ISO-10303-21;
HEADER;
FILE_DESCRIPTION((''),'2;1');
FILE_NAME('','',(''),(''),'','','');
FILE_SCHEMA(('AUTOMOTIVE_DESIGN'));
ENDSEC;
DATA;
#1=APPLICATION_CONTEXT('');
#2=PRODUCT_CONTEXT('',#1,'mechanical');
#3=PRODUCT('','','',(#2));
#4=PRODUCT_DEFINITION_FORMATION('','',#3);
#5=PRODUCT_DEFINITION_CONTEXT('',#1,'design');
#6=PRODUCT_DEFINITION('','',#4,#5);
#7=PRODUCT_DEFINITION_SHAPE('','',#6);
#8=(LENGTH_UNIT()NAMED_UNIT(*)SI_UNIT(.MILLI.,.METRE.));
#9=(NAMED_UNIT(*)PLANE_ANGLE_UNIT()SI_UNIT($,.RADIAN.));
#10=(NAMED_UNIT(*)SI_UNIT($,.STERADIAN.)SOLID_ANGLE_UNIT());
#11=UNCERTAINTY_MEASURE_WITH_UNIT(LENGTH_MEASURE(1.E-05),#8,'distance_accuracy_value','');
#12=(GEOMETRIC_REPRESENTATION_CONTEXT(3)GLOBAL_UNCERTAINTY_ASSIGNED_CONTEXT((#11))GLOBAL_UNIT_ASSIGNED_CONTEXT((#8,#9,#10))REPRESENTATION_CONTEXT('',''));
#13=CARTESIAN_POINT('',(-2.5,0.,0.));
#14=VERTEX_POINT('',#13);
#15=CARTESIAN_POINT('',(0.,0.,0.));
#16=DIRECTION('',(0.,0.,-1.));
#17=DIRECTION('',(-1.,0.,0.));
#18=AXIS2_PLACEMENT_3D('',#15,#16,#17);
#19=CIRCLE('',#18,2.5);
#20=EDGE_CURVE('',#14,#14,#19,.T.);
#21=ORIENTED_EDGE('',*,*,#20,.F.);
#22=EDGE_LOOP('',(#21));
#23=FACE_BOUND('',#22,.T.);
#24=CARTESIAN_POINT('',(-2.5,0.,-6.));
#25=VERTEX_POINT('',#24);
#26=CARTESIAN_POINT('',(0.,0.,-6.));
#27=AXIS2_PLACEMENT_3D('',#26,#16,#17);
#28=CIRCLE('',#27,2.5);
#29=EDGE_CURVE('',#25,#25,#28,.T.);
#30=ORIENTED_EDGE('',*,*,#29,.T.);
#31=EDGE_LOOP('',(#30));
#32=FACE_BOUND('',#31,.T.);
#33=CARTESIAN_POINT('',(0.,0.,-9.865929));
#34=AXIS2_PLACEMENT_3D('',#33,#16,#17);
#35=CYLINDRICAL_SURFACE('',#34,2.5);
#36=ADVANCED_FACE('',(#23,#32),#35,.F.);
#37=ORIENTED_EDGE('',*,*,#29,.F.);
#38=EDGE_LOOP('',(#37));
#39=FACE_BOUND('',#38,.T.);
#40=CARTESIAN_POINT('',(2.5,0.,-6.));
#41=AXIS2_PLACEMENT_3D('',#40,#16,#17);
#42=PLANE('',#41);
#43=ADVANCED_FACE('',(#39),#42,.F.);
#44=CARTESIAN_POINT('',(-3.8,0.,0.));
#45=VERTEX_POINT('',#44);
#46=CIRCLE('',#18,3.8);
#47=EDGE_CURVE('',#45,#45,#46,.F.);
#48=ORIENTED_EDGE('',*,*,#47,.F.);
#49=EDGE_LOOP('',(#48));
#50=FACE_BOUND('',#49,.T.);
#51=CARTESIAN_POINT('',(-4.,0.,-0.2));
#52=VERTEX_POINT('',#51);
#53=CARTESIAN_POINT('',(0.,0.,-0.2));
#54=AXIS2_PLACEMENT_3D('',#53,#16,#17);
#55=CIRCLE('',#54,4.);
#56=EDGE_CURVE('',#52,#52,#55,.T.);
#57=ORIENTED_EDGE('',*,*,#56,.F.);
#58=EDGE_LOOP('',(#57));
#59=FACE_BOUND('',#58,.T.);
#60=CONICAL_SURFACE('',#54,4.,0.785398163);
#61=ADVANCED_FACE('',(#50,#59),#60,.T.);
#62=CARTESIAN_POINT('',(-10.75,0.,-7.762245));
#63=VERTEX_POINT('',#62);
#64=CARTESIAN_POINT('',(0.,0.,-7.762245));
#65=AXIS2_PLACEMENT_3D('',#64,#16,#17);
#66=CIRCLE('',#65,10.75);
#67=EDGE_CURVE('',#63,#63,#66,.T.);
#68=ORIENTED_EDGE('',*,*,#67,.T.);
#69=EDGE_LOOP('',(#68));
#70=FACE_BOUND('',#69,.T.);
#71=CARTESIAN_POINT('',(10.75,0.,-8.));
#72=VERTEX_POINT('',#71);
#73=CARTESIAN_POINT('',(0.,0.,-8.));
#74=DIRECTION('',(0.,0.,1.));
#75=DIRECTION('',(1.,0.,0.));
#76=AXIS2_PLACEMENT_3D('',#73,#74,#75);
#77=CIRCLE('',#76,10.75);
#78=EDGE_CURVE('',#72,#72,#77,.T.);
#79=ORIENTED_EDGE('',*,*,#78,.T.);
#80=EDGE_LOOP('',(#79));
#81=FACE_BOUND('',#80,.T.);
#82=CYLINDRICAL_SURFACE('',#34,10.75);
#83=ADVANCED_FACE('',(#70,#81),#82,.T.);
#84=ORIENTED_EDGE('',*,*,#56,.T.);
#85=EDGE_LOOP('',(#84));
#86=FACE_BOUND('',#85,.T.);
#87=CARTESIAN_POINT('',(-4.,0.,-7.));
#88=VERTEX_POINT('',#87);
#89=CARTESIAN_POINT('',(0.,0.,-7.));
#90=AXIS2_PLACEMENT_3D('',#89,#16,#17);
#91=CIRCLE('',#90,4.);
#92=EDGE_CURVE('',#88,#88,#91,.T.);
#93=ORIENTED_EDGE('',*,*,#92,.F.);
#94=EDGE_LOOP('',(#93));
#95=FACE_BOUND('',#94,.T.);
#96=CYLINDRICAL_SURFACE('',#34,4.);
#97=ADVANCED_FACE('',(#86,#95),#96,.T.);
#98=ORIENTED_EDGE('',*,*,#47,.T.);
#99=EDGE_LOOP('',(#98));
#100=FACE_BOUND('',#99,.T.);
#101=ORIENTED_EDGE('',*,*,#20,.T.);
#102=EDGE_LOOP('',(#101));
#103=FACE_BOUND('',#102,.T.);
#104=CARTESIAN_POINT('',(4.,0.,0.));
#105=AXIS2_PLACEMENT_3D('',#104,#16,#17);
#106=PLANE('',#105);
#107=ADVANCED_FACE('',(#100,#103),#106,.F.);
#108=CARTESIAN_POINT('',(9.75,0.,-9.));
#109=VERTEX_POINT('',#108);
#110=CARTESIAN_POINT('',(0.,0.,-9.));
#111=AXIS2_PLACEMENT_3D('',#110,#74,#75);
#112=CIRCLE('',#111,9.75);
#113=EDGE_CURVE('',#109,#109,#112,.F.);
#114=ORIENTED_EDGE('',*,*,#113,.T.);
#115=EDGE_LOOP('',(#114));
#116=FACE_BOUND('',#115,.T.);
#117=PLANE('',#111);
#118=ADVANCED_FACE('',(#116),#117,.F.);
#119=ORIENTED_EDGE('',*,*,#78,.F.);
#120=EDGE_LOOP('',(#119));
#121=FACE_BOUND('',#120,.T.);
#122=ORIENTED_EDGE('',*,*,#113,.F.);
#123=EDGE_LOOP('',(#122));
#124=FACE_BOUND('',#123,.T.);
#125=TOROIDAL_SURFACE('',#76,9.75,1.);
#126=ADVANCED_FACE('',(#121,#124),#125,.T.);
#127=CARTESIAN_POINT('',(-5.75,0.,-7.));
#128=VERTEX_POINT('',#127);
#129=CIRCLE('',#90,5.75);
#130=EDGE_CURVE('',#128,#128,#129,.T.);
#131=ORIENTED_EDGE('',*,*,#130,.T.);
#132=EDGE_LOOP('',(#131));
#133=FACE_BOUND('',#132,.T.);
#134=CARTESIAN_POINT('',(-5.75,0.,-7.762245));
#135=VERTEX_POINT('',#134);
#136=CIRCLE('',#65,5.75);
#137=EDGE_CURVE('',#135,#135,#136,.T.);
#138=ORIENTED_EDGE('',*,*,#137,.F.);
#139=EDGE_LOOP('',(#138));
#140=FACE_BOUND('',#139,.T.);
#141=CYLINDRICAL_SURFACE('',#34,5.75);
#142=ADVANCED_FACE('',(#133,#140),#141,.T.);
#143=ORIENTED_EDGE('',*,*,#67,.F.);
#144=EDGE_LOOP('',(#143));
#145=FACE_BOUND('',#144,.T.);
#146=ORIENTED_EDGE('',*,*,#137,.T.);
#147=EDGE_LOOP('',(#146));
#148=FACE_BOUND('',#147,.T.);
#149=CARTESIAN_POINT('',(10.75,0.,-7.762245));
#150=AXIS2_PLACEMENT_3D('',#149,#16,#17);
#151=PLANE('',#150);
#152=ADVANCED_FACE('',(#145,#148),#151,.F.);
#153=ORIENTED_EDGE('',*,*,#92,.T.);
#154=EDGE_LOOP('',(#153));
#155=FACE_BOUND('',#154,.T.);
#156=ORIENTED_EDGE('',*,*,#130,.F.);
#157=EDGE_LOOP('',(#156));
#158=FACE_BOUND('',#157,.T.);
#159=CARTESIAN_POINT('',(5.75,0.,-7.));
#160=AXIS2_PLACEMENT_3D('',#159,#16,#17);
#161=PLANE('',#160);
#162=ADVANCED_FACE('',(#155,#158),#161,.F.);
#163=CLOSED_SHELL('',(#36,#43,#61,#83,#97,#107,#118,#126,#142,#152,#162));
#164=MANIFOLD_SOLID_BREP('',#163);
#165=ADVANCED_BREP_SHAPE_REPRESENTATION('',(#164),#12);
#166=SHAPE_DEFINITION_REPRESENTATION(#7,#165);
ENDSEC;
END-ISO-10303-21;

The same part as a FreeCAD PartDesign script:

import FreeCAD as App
import Part
import Sketcher
from FreeCAD import Vector


def edges_at(feature, points):
    """Names of the edges that pass closest to the given points."""
    edges = feature.Shape.Edges
    near = lambda p: min(range(len(edges)), key=lambda i: edges[i].distToShape(Part.Vertex(*p))[0])
    return sorted({f"Edge{near(p) + 1}" for p in points})

doc = App.newDocument("Part")
body = doc.addObject("PartDesign::Body", "Body")

# Sketch on XZ plane
sketch1 = doc.addObject("Sketcher::SketchObject", "Sketch")
body.addObject(sketch1)
sketch1.AttachmentSupport = (doc.XZ_Plane, [""])
sketch1.MapMode = "FlatFace"
sketch1.addGeometry(Part.LineSegment(Vector(2.5, 0, 0), Vector(4, 0, 0)), False)
sketch1.addGeometry(Part.LineSegment(Vector(4, 0, 0), Vector(4, -7, 0)), False)
sketch1.addGeometry(Part.LineSegment(Vector(4, -7, 0), Vector(5.8, -7, 0)), False)
sketch1.addGeometry(Part.LineSegment(Vector(5.8, -7, 0), Vector(5.8, -7.8, 0)), False)
sketch1.addGeometry(Part.LineSegment(Vector(5.8, -7.8, 0), Vector(10.8, -7.8, 0)), False)
sketch1.addGeometry(Part.LineSegment(Vector(10.8, -7.8, 0), Vector(10.8, -9, 0)), False)
sketch1.addGeometry(Part.LineSegment(Vector(10.8, -9, 0), Vector(0, -9, 0)), False)
sketch1.addGeometry(Part.LineSegment(Vector(0, -9, 0), Vector(0, -6, 0)), False)
sketch1.addGeometry(Part.LineSegment(Vector(0, -6, 0), Vector(2.5, -6, 0)), False)
sketch1.addGeometry(Part.LineSegment(Vector(2.5, -6, 0), Vector(2.5, 0, 0)), False)
sketch1.addConstraint(Sketcher.Constraint("Coincident", 0, 2, 1, 1))
sketch1.addConstraint(Sketcher.Constraint("Coincident", 1, 2, 2, 1))
sketch1.addConstraint(Sketcher.Constraint("Coincident", 2, 2, 3, 1))
sketch1.addConstraint(Sketcher.Constraint("Coincident", 3, 2, 4, 1))
sketch1.addConstraint(Sketcher.Constraint("Coincident", 4, 2, 5, 1))
sketch1.addConstraint(Sketcher.Constraint("Coincident", 5, 2, 6, 1))
sketch1.addConstraint(Sketcher.Constraint("Coincident", 6, 2, 7, 1))
sketch1.addConstraint(Sketcher.Constraint("Coincident", 7, 2, 8, 1))
sketch1.addConstraint(Sketcher.Constraint("Coincident", 8, 2, 9, 1))
sketch1.addConstraint(Sketcher.Constraint("Coincident", 9, 2, 0, 1))
sketch1.addConstraint(Sketcher.Constraint("Horizontal", 0))
sketch1.addConstraint(Sketcher.Constraint("Vertical", 1))
sketch1.addConstraint(Sketcher.Constraint("Horizontal", 2))
sketch1.addConstraint(Sketcher.Constraint("Vertical", 3))
sketch1.addConstraint(Sketcher.Constraint("Horizontal", 4))
sketch1.addConstraint(Sketcher.Constraint("Vertical", 5))
sketch1.addConstraint(Sketcher.Constraint("Horizontal", 6))
sketch1.addConstraint(Sketcher.Constraint("Vertical", 7))
sketch1.addConstraint(Sketcher.Constraint("Horizontal", 8))
sketch1.addConstraint(Sketcher.Constraint("Vertical", 9))
sketch1.addConstraint(Sketcher.Constraint("PointOnObject", 0, 2, -1))
sketch1.addConstraint(Sketcher.Constraint("PointOnObject", 6, 2, -2))
sketch1.addConstraint(Sketcher.Constraint("DistanceX", 4, 1, 4, 2, 5.0))
sketch1.addConstraint(Sketcher.Constraint("DistanceY", 1, 2, 1, 1, 7.0))
sketch1.addConstraint(Sketcher.Constraint("DistanceY", 7, 1, 7, 2, 3.0))
sketch1.addConstraint(Sketcher.Constraint("DistanceY", 9, 1, 9, 2, 6.0))
sketch1.addConstraint(Sketcher.Constraint("DistanceX", 0, 1, 0, 2, 1.5))
sketch1.addConstraint(Sketcher.Constraint("DistanceX", 8, 1, 8, 2, 2.5))
sketch1.addConstraint(Sketcher.Constraint("DistanceX", 2, 1, 2, 2, 1.75))
sketch1.addConstraint(Sketcher.Constraint("DistanceY", 3, 2, 3, 1, 0.762245))
revolution = doc.addObject("PartDesign::Revolution", "Revolution")
body.addObject(revolution)
revolution.Profile = sketch1
revolution.ReferenceAxis = (sketch1, ["V_Axis"])
revolution.Angle = 360
doc.recompute()

chamfer = doc.addObject("PartDesign::Chamfer", "Chamfer")
body.addObject(chamfer)
chamfer.Base = (revolution, edges_at(revolution, [(4, 0, 0)]))
chamfer.Size = 0.2
doc.recompute()

fillet = doc.addObject("PartDesign::Fillet", "Fillet")
body.addObject(fillet)
fillet.Base = (chamfer, edges_at(chamfer, [(10.75, 0, -9)]))
fillet.Radius = 1

doc.recompute()
